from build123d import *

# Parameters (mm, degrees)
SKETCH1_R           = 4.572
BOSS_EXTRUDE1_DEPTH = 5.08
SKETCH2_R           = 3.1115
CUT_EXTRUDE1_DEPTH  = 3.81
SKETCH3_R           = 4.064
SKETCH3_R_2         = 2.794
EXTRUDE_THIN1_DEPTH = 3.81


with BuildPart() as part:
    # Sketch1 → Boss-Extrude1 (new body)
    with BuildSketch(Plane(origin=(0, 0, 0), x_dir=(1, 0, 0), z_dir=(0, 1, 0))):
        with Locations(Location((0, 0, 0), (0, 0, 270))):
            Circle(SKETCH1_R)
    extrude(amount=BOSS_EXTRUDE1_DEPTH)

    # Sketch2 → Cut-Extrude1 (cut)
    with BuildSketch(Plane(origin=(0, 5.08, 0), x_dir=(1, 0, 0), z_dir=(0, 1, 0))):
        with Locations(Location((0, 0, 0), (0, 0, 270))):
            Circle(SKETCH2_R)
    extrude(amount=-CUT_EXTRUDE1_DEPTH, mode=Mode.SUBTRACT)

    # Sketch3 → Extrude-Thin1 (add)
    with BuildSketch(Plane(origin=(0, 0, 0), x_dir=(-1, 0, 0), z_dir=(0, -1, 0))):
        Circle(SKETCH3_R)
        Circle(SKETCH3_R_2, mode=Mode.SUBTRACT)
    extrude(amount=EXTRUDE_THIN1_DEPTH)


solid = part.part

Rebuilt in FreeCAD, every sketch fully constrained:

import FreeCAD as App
import Part
import Sketcher
Q = App.Units.Quantity

doc = App.newDocument("Part")
body = doc.addObject("PartDesign::Body", "Body")

sketch1 = doc.addObject("Sketcher::SketchObject", "Sketch")
body.addObject(sketch1)
sketch1.AttachmentSupport = (doc.XZ_Plane, [""])
sketch1.MapMode = "FlatFace"
sketch1.addGeometry(Part.Circle(App.Vector(0, 0, 0), App.Vector(0, 0, 1), 4.6), False)
sketch1.addConstraint([
    Sketcher.Constraint("Coincident", 0, 3, -1, 1),
    Sketcher.Constraint("Diameter", 0, Q("0.36 in")),
])
pad1 = doc.addObject("PartDesign::Pad", "Pad")
body.addObject(pad1)
pad1.Profile = sketch1
pad1.Length = Q("0.2 in")
pad1.Reversed = True

sketch2 = doc.addObject("Sketcher::SketchObject", "Sketch001")
body.addObject(sketch2)
sketch2.AttachmentSupport = (doc.XZ_Plane, [""])
sketch2.MapMode = "FlatFace"
sketch2.AttachmentOffset = App.Placement(App.Vector(0, 0, -0.2 * 25.4), App.Rotation())
sketch2.addGeometry(Part.Circle(App.Vector(0, 0, 0), App.Vector(0, 0, 1), 3.1), False)
sketch2.addConstraint([
    Sketcher.Constraint("Coincident", 0, 3, -1, 1),
    Sketcher.Constraint("Diameter", 0, Q("0.245 in")),
])
pocket1 = doc.addObject("PartDesign::Pocket", "Pocket")
body.addObject(pocket1)
pocket1.Profile = sketch2
pocket1.Length = Q("0.15 in")
pocket1.Reversed = True

sketch3 = doc.addObject("Sketcher::SketchObject", "Sketch002")
body.addObject(sketch3)
sketch3.AttachmentSupport = (doc.XZ_Plane, [""])
sketch3.MapMode = "FlatFace"
sketch3.addGeometry([
    Part.Circle(App.Vector(0, 0, 0), App.Vector(0, 0, 1), 4.1),
    Part.Circle(App.Vector(0, 0, 0), App.Vector(0, 0, 1), 2.8),
], False)
sketch3.addConstraint([
    Sketcher.Constraint("Coincident", 0, 3, -1, 1),
    Sketcher.Constraint("Coincident", 1, 3, -1, 1),
    Sketcher.Constraint("Diameter", 0, Q("0.32 in")),
    Sketcher.Constraint("Diameter", 1, Q("0.22 in")),
])
pad2 = doc.addObject("PartDesign::Pad", "Pad001")
body.addObject(pad2)
pad2.Profile = sketch3
pad2.Length = Q("0.15 in")

doc.recompute()
